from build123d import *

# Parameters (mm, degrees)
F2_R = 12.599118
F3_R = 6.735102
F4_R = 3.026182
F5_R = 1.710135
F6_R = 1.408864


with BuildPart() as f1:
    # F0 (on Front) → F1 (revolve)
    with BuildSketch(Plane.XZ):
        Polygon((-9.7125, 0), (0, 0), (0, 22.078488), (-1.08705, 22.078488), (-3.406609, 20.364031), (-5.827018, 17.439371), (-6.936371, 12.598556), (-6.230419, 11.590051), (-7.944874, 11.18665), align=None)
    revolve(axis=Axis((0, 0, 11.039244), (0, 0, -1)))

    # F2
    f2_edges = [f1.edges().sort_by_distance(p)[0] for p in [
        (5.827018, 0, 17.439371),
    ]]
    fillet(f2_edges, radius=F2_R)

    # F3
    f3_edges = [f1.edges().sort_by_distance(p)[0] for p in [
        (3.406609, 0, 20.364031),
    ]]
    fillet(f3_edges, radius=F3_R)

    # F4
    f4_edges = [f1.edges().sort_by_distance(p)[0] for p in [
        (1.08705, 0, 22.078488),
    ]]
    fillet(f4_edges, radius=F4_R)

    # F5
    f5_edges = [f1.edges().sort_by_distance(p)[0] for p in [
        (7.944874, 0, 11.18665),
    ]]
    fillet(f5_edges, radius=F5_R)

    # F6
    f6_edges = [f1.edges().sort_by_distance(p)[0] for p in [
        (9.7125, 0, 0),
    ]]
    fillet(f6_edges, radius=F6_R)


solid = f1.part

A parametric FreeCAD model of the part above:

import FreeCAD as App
import Part
import Sketcher
from FreeCAD import Vector


def edges_at(feature, points):
    """Names of the edges that pass closest to the given points."""
    edges = feature.Shape.Edges
    near = lambda p: min(range(len(edges)), key=lambda i: edges[i].distToShape(Part.Vertex(*p))[0])
    return sorted({f"Edge{near(p) + 1}" for p in points})


def add_polygon(sketch, points):
    """Adds a closed chain of lines whose ends are joined by coincident constraints."""
    first, n = sketch.GeometryCount, len(points)
    for a, b in zip(points, points[1:] + points[:1]):
        sketch.addGeometry(Part.LineSegment(App.Vector(*a, 0), App.Vector(*b, 0)), False)
    for i in range(n):
        sketch.addConstraint(Sketcher.Constraint("Coincident", first + i, 2, first + (i + 1) % n, 1))

doc = App.newDocument("Part")
body = doc.addObject("PartDesign::Body", "Body")

sketch1 = body.newObject("Sketcher::SketchObject", "Sketch")
sketch1.AttachmentSupport = (doc.getObject("XZ_Plane"), [""])
sketch1.MapMode = "FlatFace"
add_polygon(sketch1, [(-9.7, 0), (0, 0), (0, 22.1), (-1.1, 22.1), (-3.4, 20.4), (-5.8, 17.4), (-6.9, 12.6), (-6.2, 11.6), (-7.9, 11.2)])
sketch1.addConstraint(Sketcher.Constraint("Horizontal", 0))
sketch1.addConstraint(Sketcher.Constraint("Vertical", 1))
sketch1.addConstraint(Sketcher.Constraint("Horizontal", 2))
sketch1.addConstraint(Sketcher.Constraint("Coincident", 0, 2, -1, 1))
sketch1.addConstraint(Sketcher.Constraint("DistanceX", 0, 1, 0, 2, 9.7125))
sketch1.addConstraint(Sketcher.Constraint("Distance", 5, 4.966302))
sketch1.addConstraint(Sketcher.Constraint("DistanceX", 2, 2, 2, 1, 1.08705))
sketch1.addConstraint(Sketcher.Constraint("DistanceY", 1, 1, 1, 2, 22.078488))
sketch1.addConstraint(Sketcher.Constraint("DistanceX", 6, 2, 4, 2, 0.403401))
sketch1.addConstraint(Sketcher.Constraint("DistanceY", 7, 2, 6, 2, 0.403401))
sketch1.addConstraint(Sketcher.Constraint("Distance", 3, 2.884392))
sketch1.addConstraint(Sketcher.Constraint("DistanceX", 3, 2, -1, 1, 3.406609))
sketch1.addConstraint(Sketcher.Constraint("DistanceY", -1, 1, 4, 2, 17.439371))
sketch1.addConstraint(Sketcher.Constraint("DistanceX", 5, 2, -1, 1, 6.936371))
sketch1.addConstraint(Sketcher.Constraint("DistanceX", 6, 2, -1, 1, 6.230419))
sketch1.addConstraint(Sketcher.Constraint("DistanceY", -1, 1, 6, 2, 11.590051))
sketch1.addConstraint(Sketcher.Constraint("Distance", 7, 1.761275))
revolution = body.newObject("PartDesign::Revolution", "Revolution")
revolution.Profile = sketch1
revolution.ReferenceAxis = (sketch1, ["V_Axis"])
revolution.Angle = 360
doc.recompute()

fillet = body.newObject("PartDesign::Fillet", "Fillet")
fillet.Base = (revolution, edges_at(revolution, [(5.827, 0, 17.439)]))
fillet.Radius = 12.599118
doc.recompute()

fillet2 = body.newObject("PartDesign::Fillet", "Fillet001")
fillet2.Base = (fillet, edges_at(fillet, [(3.407, 0, 20.364)]))
fillet2.Radius = 6.735102
doc.recompute()

fillet3 = body.newObject("PartDesign::Fillet", "Fillet002")
fillet3.Base = (fillet2, edges_at(fillet2, [(1.087, 0, 22.078)]))
fillet3.Radius = 3.026182
doc.recompute()

fillet4 = body.newObject("PartDesign::Fillet", "Fillet003")
fillet4.Base = (fillet3, edges_at(fillet3, [(7.945, 0, 11.187)]))
fillet4.Radius = 1.710135
doc.recompute()

fillet5 = body.newObject("PartDesign::Fillet", "Fillet004")
fillet5.Base = (fillet4, edges_at(fillet4, [(9.713, 0, 0)]))
fillet5.Radius = 1.408864

doc.recompute()
